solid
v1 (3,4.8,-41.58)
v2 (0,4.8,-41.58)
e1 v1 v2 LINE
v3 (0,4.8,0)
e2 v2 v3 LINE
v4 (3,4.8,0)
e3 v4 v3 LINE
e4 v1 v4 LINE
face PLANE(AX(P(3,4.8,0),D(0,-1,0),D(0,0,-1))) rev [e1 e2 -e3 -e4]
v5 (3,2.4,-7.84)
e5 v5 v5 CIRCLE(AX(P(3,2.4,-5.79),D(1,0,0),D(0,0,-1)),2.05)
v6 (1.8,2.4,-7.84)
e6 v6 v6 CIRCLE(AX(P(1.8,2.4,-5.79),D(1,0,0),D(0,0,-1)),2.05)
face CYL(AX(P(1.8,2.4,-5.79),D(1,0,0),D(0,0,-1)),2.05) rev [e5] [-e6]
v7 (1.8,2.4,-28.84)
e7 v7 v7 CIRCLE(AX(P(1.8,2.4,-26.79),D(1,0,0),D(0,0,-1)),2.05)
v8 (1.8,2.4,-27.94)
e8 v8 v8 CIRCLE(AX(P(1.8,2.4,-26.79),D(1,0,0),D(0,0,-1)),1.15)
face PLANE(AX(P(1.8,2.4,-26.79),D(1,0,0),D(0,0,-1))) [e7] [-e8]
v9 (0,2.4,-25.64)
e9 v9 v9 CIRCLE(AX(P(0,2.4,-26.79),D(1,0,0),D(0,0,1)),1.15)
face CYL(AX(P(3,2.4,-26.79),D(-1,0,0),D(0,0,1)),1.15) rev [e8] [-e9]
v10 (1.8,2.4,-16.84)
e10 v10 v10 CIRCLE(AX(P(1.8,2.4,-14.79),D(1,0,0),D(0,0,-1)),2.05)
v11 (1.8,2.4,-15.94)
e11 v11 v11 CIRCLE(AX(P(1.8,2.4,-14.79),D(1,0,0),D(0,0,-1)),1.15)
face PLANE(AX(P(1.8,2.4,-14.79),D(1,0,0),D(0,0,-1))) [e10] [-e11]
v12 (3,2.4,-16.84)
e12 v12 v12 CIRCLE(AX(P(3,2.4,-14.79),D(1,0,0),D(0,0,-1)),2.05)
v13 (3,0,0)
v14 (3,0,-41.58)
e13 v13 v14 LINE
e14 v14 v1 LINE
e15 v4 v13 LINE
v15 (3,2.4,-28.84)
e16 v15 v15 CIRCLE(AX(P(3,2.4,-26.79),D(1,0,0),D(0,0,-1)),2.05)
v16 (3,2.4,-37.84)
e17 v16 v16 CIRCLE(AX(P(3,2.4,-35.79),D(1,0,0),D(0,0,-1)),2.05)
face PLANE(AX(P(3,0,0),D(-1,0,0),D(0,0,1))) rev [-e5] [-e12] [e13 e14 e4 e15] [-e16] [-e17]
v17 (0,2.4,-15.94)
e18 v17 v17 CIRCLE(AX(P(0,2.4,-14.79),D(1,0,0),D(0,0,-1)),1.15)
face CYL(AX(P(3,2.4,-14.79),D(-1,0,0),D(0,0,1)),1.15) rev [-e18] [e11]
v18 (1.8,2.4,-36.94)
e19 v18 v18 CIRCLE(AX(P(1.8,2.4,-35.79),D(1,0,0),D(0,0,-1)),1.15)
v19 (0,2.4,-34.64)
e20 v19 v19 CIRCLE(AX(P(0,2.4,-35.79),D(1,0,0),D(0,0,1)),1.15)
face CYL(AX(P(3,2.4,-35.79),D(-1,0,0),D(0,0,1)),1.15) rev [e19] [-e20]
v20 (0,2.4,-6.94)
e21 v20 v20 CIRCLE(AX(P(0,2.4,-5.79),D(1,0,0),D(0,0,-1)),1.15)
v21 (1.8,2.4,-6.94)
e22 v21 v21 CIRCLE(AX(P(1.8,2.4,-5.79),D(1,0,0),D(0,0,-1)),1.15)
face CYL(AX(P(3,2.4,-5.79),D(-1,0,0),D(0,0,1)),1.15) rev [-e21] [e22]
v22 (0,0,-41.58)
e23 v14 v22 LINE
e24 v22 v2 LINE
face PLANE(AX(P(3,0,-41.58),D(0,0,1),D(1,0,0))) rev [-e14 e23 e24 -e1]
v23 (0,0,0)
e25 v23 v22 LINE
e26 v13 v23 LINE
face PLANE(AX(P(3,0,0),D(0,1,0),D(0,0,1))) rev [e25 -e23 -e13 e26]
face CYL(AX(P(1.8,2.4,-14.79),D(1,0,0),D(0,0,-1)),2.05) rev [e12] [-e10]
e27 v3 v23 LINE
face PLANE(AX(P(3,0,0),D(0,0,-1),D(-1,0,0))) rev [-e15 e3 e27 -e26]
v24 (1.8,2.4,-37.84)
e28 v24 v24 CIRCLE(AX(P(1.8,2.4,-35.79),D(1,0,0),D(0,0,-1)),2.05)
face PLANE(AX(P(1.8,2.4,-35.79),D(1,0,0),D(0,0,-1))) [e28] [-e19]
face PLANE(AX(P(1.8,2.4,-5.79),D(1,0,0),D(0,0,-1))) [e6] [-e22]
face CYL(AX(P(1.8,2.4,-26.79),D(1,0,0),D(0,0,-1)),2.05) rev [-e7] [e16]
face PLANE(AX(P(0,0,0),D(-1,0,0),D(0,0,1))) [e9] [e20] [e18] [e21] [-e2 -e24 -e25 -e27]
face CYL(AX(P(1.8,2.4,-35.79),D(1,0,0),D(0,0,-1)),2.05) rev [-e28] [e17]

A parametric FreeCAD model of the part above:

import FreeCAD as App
import Part
import Sketcher
Q = App.Units.Quantity

doc = App.newDocument("Part")
body = doc.addObject("PartDesign::Body", "Body")

# Sketch on YZ plane
sketch1 = body.newObject("Sketcher::SketchObject", "Sketch")
sketch1.AttachmentSupport = (doc.getObject("YZ_Plane"), [""])
sketch1.MapMode = "FlatFace"
sketch1.addGeometry([
    Part.LineSegment(App.Vector(4.8, 0, 0), App.Vector(0, 0, 0)),  # 0
    Part.LineSegment(App.Vector(0, 0, 0), App.Vector(0, -41.6, 0)),  # 1
    Part.LineSegment(App.Vector(0, -41.6, 0), App.Vector(4.8, -41.6, 0)),  # 2
    Part.LineSegment(App.Vector(4.8, -41.6, 0), App.Vector(4.8, 0, 0)),  # 3
    Part.Circle(App.Vector(2.4, -5.8, 0), App.Vector(0, 0, 1), 1.1),  # 4
    Part.Circle(App.Vector(2.4, -14.8, 0), App.Vector(0, 0, 1), 1.1),  # 5
    Part.Circle(App.Vector(2.4, -26.8, 0), App.Vector(0, 0, 1), 1.1),  # 6
    Part.Circle(App.Vector(2.4, -35.8, 0), App.Vector(0, 0, 1), 1.1),  # 7
], False)
sketch1.addConstraint([
    Sketcher.Constraint("Coincident", 0, 2, 1, 1),
    Sketcher.Constraint("Coincident", 1, 2, 2, 1),
    Sketcher.Constraint("Coincident", 2, 2, 3, 1),
    Sketcher.Constraint("Coincident", 3, 2, 0, 1),
    Sketcher.Constraint("Horizontal", 0),
    Sketcher.Constraint("Vertical", 1),
    Sketcher.Constraint("Horizontal", 2),
    Sketcher.Constraint("Vertical", 3),
    Sketcher.Constraint("Coincident", 0, 2, -1, 1),
    Sketcher.Constraint("Equal", 4, 5),
    Sketcher.Constraint("Equal", 5, 6),
    Sketcher.Constraint("Equal", 6, 7),
    Sketcher.Constraint("Vertical", 4, 3, 5, 3),
    Sketcher.Constraint("Vertical", 5, 3, 6, 3),
    Sketcher.Constraint("Vertical", 6, 3, 7, 3),
    Sketcher.Constraint("Diameter", 4, Q("2.3 mm")),
    Sketcher.Constraint("DistanceX", 0, 2, 0, 1, Q("4.8 mm")),
    Sketcher.Constraint("DistanceY", 5, 3, 4, 3, Q("9 mm")),
    Sketcher.Constraint("DistanceY", 6, 3, 5, 3, Q("12 mm")),
    Sketcher.Constraint("DistanceY", 7, 3, 6, 3, Q("9 mm")),
    Sketcher.Constraint("DistanceY", 1, 2, 1, 1, Q("41.58 mm")),
    Sketcher.Constraint("DistanceX", -1, 1, 4, 3, Q("2.4 mm")),
    Sketcher.Constraint("DistanceY", 4, 3, -1, 1, Q("5.79 mm")),
])
pad1 = body.newObject("PartDesign::Pad", "Pad")
pad1.Profile = sketch1
pad1.Length = 3

# Sketch on YZ plane
sketch2 = body.newObject("Sketcher::SketchObject", "Sketch001")
sketch2.AttachmentSupport = (doc.getObject("YZ_Plane"), [""])
sketch2.MapMode = "FlatFace"
sketch2.AttachmentOffset = App.Placement(App.Vector(0, 0, 3), App.Rotation())
sketch2.addGeometry([
    Part.Circle(App.Vector(2.4, -5.8, 0), App.Vector(0, 0, 1), 2),
    Part.Circle(App.Vector(2.4, -14.8, 0), App.Vector(0, 0, 1), 2),
    Part.Circle(App.Vector(2.4, -26.8, 0), App.Vector(0, 0, 1), 2),
    Part.Circle(App.Vector(2.4, -35.8, 0), App.Vector(0, 0, 1), 2),
], False)
sketch2.addConstraint([
    Sketcher.Constraint("Equal", 0, 1),
    Sketcher.Constraint("Equal", 1, 2),
    Sketcher.Constraint("Equal", 2, 3),
    Sketcher.Constraint("Vertical", 0, 3, 1, 3),
    Sketcher.Constraint("Vertical", 1, 3, 2, 3),
    Sketcher.Constraint("Vertical", 2, 3, 3, 3),
    Sketcher.Constraint("Diameter", 0, Q("4.1 mm")),
    Sketcher.Constraint("DistanceY", 1, 3, 0, 3, Q("9 mm")),
    Sketcher.Constraint("DistanceY", 2, 3, 1, 3, Q("12 mm")),
    Sketcher.Constraint("DistanceY", 3, 3, 2, 3, Q("9 mm")),
    Sketcher.Constraint("DistanceX", -1, 1, 0, 3, Q("2.4 mm")),
    Sketcher.Constraint("DistanceY", 0, 3, -1, 1, Q("5.79 mm")),
])
pocket1 = body.newObject("PartDesign::Pocket", "Pocket")
pocket1.Profile = sketch2
pocket1.Length = 1.2

doc.recompute()
